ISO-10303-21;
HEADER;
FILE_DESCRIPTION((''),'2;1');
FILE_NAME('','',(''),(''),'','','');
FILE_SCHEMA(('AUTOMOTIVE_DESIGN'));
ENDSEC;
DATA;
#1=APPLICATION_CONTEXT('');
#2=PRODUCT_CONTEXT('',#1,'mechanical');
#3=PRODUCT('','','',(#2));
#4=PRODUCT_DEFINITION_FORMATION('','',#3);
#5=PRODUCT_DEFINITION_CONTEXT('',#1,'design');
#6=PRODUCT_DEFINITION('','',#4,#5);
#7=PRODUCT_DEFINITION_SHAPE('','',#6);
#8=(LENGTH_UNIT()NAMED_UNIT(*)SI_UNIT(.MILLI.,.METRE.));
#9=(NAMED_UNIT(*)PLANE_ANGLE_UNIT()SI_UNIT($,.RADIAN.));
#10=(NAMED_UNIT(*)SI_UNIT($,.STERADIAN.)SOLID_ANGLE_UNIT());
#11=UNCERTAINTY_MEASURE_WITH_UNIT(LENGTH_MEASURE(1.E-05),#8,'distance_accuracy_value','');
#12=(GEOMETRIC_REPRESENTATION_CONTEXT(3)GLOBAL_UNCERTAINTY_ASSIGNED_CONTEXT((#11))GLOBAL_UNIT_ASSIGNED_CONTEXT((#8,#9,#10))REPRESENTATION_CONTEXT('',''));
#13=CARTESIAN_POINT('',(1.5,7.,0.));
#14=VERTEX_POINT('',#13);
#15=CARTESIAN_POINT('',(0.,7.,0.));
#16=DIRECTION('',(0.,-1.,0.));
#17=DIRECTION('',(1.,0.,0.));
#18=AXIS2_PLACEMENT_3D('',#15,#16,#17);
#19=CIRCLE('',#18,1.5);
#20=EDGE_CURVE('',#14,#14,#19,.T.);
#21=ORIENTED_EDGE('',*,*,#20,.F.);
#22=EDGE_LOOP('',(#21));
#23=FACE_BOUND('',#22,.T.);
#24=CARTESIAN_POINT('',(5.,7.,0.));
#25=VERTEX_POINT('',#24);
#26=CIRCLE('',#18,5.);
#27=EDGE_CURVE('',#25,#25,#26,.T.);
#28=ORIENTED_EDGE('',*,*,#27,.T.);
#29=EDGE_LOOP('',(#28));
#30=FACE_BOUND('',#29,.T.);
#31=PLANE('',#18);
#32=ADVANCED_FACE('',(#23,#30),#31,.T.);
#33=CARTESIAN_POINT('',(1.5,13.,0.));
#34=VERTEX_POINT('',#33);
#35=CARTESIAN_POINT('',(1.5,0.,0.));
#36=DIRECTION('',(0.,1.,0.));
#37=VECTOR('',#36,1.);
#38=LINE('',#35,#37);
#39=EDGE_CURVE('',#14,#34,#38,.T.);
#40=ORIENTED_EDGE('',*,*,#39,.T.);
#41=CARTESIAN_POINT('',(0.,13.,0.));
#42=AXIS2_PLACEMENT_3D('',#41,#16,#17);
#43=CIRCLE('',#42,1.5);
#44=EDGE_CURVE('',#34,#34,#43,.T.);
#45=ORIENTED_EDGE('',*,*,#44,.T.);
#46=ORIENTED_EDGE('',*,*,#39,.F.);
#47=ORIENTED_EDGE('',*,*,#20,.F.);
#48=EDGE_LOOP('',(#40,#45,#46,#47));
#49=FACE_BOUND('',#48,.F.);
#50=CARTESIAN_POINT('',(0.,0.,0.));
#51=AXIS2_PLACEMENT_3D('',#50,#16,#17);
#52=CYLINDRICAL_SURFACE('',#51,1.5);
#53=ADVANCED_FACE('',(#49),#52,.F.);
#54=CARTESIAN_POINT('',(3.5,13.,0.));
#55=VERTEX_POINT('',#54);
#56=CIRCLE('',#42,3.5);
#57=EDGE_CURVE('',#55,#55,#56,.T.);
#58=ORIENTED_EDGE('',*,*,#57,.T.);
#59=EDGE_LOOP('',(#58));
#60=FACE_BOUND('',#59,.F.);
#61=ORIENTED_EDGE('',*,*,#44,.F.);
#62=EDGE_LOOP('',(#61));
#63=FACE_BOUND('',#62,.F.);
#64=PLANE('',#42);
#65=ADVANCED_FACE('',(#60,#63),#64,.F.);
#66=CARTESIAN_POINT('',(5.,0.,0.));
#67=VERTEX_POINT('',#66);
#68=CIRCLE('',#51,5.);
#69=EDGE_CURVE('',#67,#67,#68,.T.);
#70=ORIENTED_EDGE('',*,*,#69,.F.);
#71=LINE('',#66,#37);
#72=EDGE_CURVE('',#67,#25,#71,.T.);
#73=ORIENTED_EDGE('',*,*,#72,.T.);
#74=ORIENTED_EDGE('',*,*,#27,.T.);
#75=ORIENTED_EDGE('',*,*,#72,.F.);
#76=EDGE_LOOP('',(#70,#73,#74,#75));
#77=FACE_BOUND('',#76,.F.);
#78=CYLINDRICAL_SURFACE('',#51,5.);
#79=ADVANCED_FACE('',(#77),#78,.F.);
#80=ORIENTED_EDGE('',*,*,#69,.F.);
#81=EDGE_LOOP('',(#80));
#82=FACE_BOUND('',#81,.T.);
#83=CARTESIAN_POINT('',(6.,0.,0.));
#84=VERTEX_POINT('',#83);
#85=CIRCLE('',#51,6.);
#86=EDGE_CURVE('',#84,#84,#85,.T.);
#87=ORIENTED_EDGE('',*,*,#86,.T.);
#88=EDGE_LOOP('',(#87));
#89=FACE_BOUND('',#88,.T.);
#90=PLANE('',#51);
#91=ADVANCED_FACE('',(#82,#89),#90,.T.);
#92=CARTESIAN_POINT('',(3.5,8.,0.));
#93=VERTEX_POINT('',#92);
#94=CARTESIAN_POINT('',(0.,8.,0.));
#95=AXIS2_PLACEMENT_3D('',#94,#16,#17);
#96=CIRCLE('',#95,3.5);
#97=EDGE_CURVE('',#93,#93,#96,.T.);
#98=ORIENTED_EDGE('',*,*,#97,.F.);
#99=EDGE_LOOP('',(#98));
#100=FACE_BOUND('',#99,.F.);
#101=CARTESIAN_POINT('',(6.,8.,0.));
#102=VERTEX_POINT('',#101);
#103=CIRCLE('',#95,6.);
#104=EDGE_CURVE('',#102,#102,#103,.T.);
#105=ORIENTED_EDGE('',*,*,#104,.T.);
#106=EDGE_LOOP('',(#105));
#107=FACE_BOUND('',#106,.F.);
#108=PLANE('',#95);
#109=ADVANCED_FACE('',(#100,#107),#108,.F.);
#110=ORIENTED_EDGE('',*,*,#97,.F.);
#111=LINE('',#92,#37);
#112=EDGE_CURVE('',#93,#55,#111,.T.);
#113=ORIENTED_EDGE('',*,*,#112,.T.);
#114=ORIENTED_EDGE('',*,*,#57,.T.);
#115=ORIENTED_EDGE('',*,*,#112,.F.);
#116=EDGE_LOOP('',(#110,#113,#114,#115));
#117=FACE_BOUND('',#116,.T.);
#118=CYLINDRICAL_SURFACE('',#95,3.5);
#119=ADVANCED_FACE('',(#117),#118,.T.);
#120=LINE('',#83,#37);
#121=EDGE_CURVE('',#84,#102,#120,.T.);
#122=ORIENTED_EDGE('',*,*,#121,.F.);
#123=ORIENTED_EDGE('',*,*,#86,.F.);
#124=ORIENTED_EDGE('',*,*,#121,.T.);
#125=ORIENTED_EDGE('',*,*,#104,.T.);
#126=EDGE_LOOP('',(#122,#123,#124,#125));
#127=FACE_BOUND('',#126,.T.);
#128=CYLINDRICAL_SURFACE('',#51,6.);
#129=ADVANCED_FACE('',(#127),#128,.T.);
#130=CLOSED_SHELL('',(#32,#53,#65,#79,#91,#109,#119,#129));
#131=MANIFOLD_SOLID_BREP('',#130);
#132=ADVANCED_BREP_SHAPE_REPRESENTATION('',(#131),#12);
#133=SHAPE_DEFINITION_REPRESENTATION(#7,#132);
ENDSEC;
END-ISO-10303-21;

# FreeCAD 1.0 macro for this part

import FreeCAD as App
import Part
import Sketcher

doc = App.newDocument("Part")
body = doc.addObject("PartDesign::Body", "Body")

# Sketch on XZ plane
sketch1 = doc.addObject("Sketcher::SketchObject", "Sketch")
body.addObject(sketch1)
sketch1.AttachmentSupport = (doc.XZ_Plane, [""])
sketch1.MapMode = "FlatFace"
sketch1.addGeometry(Part.Circle(App.Vector(0, 0, 0), App.Vector(0, 0, 1), 6), False)
sketch1.addConstraint(Sketcher.Constraint("Coincident", 0, 3, -1, 1))
sketch1.addConstraint(Sketcher.Constraint("Diameter", 0, 12.0))
pad1 = doc.addObject("PartDesign::Pad", "Pad")
body.addObject(pad1)
pad1.Profile = sketch1
pad1.Length = 8
pad1.Reversed = True

# Sketch on XZ plane
sketch2 = doc.addObject("Sketcher::SketchObject", "Sketch001")
body.addObject(sketch2)
sketch2.AttachmentSupport = (doc.XZ_Plane, [""])
sketch2.MapMode = "FlatFace"
sketch2.AttachmentOffset = App.Placement(App.Vector(0, 0, -8), App.Rotation())
sketch2.addGeometry(Part.Circle(App.Vector(0, 0, 0), App.Vector(0, 0, 1), 3.5), False)
sketch2.addConstraint(Sketcher.Constraint("Coincident", 0, 3, -1, 1))
sketch2.addConstraint(Sketcher.Constraint("Diameter", 0, 7.0))
pad2 = doc.addObject("PartDesign::Pad", "Pad001")
body.addObject(pad2)
pad2.Profile = sketch2
pad2.Length = 5
pad2.Reversed = True

# Sketch on XZ plane
sketch3 = doc.addObject("Sketcher::SketchObject", "Sketch002")
body.addObject(sketch3)
sketch3.AttachmentSupport = (doc.XZ_Plane, [""])
sketch3.MapMode = "FlatFace"
sketch3.addGeometry(Part.Circle(App.Vector(0, 0, 0), App.Vector(0, 0, 1), 5), False)
sketch3.addConstraint(Sketcher.Constraint("Coincident", 0, 3, -1, 1))
sketch3.addConstraint(Sketcher.Constraint("Diameter", 0, 10.0))
pocket1 = doc.addObject("PartDesign::Pocket", "Pocket")
body.addObject(pocket1)
pocket1.Profile = sketch3
pocket1.Length = 7

# Sketch on XZ plane
sketch4 = doc.addObject("Sketcher::SketchObject", "Sketch003")
body.addObject(sketch4)
sketch4.AttachmentSupport = (doc.XZ_Plane, [""])
sketch4.MapMode = "FlatFace"
sketch4.addGeometry(Part.Circle(App.Vector(0, 0, 0), App.Vector(0, 0, 1), 1.5), False)
sketch4.addConstraint(Sketcher.Constraint("Coincident", 0, 3, -1, 1))
sketch4.addConstraint(Sketcher.Constraint("Diameter", 0, 3.0))
pocket2 = doc.addObject("PartDesign::Pocket", "Pocket001")
body.addObject(pocket2)
pocket2.Profile = sketch4
pocket2.Length = 25

doc.recompute()
